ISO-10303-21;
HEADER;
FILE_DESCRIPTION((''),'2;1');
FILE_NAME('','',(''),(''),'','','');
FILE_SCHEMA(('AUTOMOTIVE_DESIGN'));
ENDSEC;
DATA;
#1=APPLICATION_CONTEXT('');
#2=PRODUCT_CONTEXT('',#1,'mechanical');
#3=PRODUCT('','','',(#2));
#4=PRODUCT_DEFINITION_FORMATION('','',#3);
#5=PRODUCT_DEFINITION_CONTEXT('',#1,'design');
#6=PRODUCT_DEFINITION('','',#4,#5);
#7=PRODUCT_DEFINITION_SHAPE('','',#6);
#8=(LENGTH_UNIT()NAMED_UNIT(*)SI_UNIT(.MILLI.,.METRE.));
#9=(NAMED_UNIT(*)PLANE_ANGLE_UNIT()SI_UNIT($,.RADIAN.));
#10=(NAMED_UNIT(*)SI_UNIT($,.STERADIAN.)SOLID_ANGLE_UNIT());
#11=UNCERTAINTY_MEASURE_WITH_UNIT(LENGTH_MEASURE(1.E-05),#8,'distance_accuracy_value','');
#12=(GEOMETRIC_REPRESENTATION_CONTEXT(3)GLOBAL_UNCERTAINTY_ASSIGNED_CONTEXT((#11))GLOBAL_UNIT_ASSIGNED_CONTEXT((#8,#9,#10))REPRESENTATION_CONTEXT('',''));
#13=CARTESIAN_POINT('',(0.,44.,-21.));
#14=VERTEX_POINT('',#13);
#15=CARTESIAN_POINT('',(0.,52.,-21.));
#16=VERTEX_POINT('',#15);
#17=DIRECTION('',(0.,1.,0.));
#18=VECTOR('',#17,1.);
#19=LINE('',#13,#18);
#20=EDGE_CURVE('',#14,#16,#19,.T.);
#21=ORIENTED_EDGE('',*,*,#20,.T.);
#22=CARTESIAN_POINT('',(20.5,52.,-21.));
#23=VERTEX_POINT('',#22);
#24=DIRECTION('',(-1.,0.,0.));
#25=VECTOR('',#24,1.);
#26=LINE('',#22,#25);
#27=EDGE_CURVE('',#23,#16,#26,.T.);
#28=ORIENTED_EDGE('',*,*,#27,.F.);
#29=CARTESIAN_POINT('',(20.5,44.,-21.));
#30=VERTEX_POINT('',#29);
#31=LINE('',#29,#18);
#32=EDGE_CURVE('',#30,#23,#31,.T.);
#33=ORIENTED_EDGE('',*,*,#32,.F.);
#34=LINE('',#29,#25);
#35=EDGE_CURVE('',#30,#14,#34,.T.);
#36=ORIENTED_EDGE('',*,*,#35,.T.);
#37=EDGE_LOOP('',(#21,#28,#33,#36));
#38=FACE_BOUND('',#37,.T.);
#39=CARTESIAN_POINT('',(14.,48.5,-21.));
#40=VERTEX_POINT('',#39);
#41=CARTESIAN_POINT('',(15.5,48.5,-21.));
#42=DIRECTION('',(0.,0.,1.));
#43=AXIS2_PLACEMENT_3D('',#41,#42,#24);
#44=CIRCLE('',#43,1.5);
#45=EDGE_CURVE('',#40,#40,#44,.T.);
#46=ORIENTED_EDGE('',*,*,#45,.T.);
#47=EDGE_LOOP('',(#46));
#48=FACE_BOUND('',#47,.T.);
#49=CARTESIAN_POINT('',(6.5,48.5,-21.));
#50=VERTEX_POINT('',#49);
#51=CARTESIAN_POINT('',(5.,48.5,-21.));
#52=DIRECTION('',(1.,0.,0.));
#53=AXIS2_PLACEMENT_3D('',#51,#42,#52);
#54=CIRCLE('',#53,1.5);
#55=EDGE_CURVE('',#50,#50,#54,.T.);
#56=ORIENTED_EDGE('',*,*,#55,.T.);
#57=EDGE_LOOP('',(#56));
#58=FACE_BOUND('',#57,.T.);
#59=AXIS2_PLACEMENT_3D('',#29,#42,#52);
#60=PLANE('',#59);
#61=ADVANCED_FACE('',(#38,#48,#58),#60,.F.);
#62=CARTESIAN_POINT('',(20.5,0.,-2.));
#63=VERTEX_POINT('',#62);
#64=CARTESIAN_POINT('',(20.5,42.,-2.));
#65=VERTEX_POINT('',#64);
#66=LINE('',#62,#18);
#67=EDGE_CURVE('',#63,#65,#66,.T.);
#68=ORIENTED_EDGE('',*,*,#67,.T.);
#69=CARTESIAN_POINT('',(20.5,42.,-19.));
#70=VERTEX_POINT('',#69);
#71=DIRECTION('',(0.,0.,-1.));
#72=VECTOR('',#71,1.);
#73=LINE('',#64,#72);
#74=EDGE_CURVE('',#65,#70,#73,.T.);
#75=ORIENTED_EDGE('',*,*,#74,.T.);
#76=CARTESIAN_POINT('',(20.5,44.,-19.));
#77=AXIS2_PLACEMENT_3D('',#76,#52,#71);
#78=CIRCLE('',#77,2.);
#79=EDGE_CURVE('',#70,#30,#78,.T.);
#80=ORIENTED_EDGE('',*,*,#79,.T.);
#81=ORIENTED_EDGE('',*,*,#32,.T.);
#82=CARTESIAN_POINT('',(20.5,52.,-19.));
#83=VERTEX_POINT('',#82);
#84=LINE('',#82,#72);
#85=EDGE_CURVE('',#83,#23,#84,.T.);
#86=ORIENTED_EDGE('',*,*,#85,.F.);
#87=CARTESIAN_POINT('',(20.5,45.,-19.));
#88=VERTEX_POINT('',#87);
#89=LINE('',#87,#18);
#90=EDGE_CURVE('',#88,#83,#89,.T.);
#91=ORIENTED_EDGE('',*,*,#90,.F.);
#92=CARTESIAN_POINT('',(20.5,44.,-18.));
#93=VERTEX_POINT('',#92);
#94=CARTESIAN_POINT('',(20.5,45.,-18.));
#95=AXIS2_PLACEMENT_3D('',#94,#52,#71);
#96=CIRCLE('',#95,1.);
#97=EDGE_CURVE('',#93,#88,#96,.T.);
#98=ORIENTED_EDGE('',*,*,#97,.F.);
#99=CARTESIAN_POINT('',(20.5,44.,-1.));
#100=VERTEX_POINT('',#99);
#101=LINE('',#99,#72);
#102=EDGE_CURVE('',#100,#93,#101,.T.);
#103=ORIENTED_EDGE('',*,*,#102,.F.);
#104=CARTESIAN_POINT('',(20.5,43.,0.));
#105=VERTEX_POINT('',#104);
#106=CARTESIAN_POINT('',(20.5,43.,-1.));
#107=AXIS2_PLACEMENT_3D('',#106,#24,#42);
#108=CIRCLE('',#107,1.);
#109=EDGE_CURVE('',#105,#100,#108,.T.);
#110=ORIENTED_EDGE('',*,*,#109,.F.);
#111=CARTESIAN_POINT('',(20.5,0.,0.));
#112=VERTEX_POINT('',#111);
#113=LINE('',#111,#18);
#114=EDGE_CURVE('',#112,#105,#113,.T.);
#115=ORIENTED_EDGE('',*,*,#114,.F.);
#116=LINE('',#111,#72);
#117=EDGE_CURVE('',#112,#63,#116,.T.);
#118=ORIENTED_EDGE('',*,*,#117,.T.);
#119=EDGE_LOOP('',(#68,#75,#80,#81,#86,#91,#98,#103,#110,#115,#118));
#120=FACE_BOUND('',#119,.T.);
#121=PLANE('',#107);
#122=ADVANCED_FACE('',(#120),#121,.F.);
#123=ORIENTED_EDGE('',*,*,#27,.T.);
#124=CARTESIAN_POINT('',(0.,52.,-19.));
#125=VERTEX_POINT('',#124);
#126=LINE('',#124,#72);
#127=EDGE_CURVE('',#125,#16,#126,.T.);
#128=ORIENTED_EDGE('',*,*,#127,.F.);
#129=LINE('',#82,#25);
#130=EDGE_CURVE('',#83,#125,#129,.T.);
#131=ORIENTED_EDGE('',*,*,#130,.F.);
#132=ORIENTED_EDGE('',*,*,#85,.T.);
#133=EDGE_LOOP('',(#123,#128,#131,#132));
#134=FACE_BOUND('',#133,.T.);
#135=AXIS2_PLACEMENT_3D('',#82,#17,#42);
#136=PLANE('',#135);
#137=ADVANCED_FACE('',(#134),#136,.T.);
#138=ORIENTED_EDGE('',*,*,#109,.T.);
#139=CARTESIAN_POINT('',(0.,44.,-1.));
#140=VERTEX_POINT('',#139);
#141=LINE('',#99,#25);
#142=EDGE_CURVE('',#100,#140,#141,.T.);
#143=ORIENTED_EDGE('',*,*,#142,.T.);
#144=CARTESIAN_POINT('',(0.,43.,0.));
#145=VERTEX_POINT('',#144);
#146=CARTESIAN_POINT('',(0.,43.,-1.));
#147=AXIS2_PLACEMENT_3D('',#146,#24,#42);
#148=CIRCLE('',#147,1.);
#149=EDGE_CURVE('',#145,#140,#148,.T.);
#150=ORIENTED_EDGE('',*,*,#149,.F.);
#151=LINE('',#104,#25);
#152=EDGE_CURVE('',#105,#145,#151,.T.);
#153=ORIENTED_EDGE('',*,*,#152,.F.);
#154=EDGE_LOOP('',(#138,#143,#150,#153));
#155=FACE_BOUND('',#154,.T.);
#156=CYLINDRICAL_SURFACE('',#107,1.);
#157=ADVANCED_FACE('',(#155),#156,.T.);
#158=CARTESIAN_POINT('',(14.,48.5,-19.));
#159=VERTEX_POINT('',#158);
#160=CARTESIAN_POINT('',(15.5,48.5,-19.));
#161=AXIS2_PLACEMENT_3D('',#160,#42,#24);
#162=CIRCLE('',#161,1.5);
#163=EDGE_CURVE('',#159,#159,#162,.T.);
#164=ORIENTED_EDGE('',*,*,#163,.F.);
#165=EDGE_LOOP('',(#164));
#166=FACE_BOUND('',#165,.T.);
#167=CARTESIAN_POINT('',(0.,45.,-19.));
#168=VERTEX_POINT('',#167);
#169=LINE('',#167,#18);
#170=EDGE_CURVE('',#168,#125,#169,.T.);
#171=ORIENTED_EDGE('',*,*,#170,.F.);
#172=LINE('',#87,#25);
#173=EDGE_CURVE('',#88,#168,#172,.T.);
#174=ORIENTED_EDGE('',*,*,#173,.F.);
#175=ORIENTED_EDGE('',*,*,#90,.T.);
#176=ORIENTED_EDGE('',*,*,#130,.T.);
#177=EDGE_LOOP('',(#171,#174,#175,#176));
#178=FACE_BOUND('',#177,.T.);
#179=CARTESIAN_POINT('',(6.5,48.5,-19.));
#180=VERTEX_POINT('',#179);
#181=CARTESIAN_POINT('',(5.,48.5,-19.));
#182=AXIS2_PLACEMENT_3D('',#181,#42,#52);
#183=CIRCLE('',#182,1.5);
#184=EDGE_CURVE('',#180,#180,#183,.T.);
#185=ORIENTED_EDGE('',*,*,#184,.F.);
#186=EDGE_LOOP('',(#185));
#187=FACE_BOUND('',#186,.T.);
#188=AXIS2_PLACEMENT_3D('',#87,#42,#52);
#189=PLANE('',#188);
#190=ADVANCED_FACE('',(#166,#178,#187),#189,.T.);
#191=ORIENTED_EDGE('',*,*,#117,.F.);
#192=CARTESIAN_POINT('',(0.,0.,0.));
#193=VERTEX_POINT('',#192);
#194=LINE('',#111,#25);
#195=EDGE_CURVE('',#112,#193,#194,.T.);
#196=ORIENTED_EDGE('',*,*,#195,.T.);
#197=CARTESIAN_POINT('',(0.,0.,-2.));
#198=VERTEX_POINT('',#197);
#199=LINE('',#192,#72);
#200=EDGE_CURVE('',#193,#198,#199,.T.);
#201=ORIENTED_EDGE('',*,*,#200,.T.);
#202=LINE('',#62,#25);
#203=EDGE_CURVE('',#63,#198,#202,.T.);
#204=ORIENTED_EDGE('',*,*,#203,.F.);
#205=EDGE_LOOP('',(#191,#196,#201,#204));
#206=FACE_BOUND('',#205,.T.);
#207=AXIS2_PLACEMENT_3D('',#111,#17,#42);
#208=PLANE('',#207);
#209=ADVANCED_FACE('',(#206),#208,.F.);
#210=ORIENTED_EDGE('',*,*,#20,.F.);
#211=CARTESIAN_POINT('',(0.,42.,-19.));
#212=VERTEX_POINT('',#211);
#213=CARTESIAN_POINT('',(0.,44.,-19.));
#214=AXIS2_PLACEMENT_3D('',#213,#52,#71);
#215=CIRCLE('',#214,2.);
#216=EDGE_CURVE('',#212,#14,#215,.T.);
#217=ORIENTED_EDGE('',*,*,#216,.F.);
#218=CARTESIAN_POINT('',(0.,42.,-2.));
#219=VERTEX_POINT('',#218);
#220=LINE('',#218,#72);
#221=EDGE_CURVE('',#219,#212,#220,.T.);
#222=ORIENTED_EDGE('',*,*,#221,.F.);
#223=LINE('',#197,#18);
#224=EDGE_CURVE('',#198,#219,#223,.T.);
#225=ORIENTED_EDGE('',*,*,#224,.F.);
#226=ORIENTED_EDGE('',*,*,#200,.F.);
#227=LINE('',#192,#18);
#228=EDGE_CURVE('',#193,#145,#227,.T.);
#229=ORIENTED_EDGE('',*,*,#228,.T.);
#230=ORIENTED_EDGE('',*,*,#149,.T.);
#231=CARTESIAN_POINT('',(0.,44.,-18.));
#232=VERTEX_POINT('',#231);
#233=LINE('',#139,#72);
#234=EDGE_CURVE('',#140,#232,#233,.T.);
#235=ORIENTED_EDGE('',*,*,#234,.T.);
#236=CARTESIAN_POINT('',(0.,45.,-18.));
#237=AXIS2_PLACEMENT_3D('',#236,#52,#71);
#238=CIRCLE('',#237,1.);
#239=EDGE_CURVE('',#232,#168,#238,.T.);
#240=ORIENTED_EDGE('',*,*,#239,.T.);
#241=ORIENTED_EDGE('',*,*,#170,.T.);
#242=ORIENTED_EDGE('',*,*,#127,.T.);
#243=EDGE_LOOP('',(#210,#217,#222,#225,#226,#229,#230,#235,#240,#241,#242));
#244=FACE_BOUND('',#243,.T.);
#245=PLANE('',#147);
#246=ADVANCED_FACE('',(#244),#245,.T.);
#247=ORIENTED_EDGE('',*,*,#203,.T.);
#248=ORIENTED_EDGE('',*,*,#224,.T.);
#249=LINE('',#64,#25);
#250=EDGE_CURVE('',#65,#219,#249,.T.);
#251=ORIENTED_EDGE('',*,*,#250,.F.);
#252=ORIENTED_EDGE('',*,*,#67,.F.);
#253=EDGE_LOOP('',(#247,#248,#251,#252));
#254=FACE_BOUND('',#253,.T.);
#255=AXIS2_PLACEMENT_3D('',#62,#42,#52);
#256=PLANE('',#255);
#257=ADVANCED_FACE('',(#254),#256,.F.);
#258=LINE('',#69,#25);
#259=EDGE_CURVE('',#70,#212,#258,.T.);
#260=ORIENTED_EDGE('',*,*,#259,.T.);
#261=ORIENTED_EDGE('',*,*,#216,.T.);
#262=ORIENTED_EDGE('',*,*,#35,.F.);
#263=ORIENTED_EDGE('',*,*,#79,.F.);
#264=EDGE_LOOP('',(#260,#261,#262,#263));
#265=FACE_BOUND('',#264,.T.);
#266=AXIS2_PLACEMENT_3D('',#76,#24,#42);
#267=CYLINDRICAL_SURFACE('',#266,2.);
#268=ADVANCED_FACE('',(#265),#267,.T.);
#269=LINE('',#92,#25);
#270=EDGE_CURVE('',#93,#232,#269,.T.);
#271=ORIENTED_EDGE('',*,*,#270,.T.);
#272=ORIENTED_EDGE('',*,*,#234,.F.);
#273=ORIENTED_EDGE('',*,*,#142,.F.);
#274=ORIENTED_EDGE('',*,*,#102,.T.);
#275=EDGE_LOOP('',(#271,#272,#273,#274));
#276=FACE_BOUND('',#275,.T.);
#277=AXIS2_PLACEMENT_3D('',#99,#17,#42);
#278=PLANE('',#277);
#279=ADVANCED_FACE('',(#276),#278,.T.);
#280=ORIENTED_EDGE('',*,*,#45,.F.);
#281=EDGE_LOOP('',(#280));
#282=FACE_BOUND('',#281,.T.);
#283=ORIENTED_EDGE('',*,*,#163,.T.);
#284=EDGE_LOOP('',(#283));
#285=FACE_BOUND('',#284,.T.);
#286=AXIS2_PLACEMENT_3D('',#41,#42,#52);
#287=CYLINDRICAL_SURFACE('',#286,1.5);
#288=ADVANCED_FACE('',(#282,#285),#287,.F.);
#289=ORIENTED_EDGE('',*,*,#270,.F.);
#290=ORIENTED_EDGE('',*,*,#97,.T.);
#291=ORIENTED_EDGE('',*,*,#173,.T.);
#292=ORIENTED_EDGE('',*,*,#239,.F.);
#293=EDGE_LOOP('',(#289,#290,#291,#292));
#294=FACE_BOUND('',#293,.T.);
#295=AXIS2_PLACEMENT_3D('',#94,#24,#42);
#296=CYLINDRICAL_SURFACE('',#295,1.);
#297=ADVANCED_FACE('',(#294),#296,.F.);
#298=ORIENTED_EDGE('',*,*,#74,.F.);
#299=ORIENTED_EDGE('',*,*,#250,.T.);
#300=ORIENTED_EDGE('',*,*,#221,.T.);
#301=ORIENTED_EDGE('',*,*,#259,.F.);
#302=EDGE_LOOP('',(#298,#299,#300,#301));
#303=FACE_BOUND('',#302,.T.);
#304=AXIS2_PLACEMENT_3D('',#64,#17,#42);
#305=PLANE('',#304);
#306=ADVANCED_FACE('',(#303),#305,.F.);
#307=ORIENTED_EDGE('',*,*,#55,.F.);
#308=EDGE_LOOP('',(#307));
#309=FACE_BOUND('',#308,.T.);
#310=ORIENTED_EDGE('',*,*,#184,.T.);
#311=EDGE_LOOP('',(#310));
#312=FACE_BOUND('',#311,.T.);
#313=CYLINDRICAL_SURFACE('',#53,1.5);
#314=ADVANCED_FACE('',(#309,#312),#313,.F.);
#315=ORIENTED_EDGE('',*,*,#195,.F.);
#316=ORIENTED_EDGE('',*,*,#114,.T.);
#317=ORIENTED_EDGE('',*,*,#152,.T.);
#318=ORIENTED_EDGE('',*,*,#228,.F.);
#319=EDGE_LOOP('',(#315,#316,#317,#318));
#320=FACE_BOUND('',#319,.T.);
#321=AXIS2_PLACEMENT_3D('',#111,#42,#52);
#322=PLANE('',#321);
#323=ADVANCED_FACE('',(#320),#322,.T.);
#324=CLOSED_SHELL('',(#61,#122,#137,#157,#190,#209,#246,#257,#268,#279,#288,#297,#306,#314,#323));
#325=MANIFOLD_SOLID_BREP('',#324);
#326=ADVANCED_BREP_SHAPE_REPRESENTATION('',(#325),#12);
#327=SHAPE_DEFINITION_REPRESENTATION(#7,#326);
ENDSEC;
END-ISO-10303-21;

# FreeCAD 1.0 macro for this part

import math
import FreeCAD as App
import Part
import Sketcher

doc = App.newDocument("Part")
body = doc.addObject("PartDesign::Body", "Body")

# Sketch on YZ plane
sketch1 = doc.addObject("Sketcher::SketchObject", "Sketch")
body.addObject(sketch1)
sketch1.AttachmentSupport = (doc.YZ_Plane, [""])
sketch1.MapMode = "FlatFace"
sketch1.addGeometry([
    Part.LineSegment(App.Vector(43, 0, 0), App.Vector(0, 0, 0)),  # 0
    Part.LineSegment(App.Vector(0, 0, 0), App.Vector(0, -2, 0)),  # 1
    Part.LineSegment(App.Vector(0, -2, 0), App.Vector(42, -2, 0)),  # 2
    Part.LineSegment(App.Vector(42, -2, 0), App.Vector(42, -19, 0)),  # 3
    Part.ArcOfCircle(Part.Circle(App.Vector(44, -19, 0), App.Vector(0, 0, 1), 2), math.radians(-180), math.radians(-90)),  # 4
    Part.LineSegment(App.Vector(44, -21, 0), App.Vector(52, -21, 0)),  # 5
    Part.LineSegment(App.Vector(52, -21, 0), App.Vector(52, -19, 0)),  # 6
    Part.LineSegment(App.Vector(52, -19, 0), App.Vector(45, -19, 0)),  # 7
    Part.ArcOfCircle(Part.Circle(App.Vector(45, -18, 0), App.Vector(0, 0, 1), 1), math.radians(-180), math.radians(-90)),  # 8
    Part.LineSegment(App.Vector(44, -18, 0), App.Vector(44, -1, 0)),  # 9
    Part.ArcOfCircle(Part.Circle(App.Vector(43, -1, 0), App.Vector(0, 0, 1), 1), math.radians(0), math.radians(90)),  # 10
], False)
sketch1.addConstraint([
    Sketcher.Constraint("Coincident", 0, 2, 1, 1),
    Sketcher.Constraint("Coincident", 1, 2, 2, 1),
    Sketcher.Constraint("Coincident", 2, 2, 3, 1),
    Sketcher.Constraint("Tangent", 3, 2, 4, 1),
    Sketcher.Constraint("Tangent", 4, 2, 5, 1),
    Sketcher.Constraint("Coincident", 5, 2, 6, 1),
    Sketcher.Constraint("Coincident", 6, 2, 7, 1),
    Sketcher.Constraint("Tangent", 7, 2, 8, 2),
    Sketcher.Constraint("Tangent", 8, 1, 9, 1),
    Sketcher.Constraint("Tangent", 9, 2, 10, 1),
    Sketcher.Constraint("Tangent", 10, 2, 0, 1),
    Sketcher.Constraint("Horizontal", 0),
    Sketcher.Constraint("Vertical", 1),
    Sketcher.Constraint("Horizontal", 2),
    Sketcher.Constraint("Vertical", 3),
    Sketcher.Constraint("Horizontal", 5),
    Sketcher.Constraint("Vertical", 6),
    Sketcher.Constraint("Horizontal", 7),
    Sketcher.Constraint("Vertical", 9),
    Sketcher.Constraint("Coincident", 0, 2, -1, 1),
    Sketcher.Constraint("Equal", 8, 10),
    Sketcher.Constraint("Horizontal", 3, 2, 6, 2),
    Sketcher.Constraint("Vertical", 4, 2, 8, 1),
    Sketcher.Constraint("Equal", 1, 6),
    Sketcher.Constraint("Equal", 3, 9),
    Sketcher.Constraint("Radius", 4, 2.0),
    Sketcher.Constraint("DistanceX", 0, 2, 0, 1, 43.0),
    Sketcher.Constraint("DistanceX", 5, 1, 5, 2, 8.0),
    Sketcher.Constraint("DistanceY", 3, 2, 3, 1, 17.0),
])
pad1 = doc.addObject("PartDesign::Pad", "Pad")
body.addObject(pad1)
pad1.Profile = sketch1
pad1.Length = 20.5

# Sketch on XY plane
sketch2 = doc.addObject("Sketcher::SketchObject", "Sketch001")
body.addObject(sketch2)
sketch2.AttachmentSupport = (doc.XY_Plane, [""])
sketch2.MapMode = "FlatFace"
sketch2.AttachmentOffset = App.Placement(App.Vector(0, 0, -19), App.Rotation())
sketch2.addGeometry([
    Part.Circle(App.Vector(5, 48.5, 0), App.Vector(0, 0, 1), 1.5),
    Part.Circle(App.Vector(15.5, 48.5, 0), App.Vector(0, 0, 1), 1.5),
], False)
sketch2.addConstraint([
    Sketcher.Constraint("Equal", 0, 1),
    Sketcher.Constraint("Horizontal", 0, 3, 1, 3),
    Sketcher.Constraint("Diameter", 0, 3.0),
    Sketcher.Constraint("DistanceX", -1, 1, 0, 3, 5.0),
    Sketcher.Constraint("DistanceY", -1, 1, 0, 3, 48.5),
    Sketcher.Constraint("DistanceX", -1, 1, 1, 3, 15.5),
])
pocket1 = doc.addObject("PartDesign::Pocket", "Pocket")
body.addObject(pocket1)
pocket1.Profile = sketch2
pocket1.Type = "ThroughAll"

doc.recompute()
